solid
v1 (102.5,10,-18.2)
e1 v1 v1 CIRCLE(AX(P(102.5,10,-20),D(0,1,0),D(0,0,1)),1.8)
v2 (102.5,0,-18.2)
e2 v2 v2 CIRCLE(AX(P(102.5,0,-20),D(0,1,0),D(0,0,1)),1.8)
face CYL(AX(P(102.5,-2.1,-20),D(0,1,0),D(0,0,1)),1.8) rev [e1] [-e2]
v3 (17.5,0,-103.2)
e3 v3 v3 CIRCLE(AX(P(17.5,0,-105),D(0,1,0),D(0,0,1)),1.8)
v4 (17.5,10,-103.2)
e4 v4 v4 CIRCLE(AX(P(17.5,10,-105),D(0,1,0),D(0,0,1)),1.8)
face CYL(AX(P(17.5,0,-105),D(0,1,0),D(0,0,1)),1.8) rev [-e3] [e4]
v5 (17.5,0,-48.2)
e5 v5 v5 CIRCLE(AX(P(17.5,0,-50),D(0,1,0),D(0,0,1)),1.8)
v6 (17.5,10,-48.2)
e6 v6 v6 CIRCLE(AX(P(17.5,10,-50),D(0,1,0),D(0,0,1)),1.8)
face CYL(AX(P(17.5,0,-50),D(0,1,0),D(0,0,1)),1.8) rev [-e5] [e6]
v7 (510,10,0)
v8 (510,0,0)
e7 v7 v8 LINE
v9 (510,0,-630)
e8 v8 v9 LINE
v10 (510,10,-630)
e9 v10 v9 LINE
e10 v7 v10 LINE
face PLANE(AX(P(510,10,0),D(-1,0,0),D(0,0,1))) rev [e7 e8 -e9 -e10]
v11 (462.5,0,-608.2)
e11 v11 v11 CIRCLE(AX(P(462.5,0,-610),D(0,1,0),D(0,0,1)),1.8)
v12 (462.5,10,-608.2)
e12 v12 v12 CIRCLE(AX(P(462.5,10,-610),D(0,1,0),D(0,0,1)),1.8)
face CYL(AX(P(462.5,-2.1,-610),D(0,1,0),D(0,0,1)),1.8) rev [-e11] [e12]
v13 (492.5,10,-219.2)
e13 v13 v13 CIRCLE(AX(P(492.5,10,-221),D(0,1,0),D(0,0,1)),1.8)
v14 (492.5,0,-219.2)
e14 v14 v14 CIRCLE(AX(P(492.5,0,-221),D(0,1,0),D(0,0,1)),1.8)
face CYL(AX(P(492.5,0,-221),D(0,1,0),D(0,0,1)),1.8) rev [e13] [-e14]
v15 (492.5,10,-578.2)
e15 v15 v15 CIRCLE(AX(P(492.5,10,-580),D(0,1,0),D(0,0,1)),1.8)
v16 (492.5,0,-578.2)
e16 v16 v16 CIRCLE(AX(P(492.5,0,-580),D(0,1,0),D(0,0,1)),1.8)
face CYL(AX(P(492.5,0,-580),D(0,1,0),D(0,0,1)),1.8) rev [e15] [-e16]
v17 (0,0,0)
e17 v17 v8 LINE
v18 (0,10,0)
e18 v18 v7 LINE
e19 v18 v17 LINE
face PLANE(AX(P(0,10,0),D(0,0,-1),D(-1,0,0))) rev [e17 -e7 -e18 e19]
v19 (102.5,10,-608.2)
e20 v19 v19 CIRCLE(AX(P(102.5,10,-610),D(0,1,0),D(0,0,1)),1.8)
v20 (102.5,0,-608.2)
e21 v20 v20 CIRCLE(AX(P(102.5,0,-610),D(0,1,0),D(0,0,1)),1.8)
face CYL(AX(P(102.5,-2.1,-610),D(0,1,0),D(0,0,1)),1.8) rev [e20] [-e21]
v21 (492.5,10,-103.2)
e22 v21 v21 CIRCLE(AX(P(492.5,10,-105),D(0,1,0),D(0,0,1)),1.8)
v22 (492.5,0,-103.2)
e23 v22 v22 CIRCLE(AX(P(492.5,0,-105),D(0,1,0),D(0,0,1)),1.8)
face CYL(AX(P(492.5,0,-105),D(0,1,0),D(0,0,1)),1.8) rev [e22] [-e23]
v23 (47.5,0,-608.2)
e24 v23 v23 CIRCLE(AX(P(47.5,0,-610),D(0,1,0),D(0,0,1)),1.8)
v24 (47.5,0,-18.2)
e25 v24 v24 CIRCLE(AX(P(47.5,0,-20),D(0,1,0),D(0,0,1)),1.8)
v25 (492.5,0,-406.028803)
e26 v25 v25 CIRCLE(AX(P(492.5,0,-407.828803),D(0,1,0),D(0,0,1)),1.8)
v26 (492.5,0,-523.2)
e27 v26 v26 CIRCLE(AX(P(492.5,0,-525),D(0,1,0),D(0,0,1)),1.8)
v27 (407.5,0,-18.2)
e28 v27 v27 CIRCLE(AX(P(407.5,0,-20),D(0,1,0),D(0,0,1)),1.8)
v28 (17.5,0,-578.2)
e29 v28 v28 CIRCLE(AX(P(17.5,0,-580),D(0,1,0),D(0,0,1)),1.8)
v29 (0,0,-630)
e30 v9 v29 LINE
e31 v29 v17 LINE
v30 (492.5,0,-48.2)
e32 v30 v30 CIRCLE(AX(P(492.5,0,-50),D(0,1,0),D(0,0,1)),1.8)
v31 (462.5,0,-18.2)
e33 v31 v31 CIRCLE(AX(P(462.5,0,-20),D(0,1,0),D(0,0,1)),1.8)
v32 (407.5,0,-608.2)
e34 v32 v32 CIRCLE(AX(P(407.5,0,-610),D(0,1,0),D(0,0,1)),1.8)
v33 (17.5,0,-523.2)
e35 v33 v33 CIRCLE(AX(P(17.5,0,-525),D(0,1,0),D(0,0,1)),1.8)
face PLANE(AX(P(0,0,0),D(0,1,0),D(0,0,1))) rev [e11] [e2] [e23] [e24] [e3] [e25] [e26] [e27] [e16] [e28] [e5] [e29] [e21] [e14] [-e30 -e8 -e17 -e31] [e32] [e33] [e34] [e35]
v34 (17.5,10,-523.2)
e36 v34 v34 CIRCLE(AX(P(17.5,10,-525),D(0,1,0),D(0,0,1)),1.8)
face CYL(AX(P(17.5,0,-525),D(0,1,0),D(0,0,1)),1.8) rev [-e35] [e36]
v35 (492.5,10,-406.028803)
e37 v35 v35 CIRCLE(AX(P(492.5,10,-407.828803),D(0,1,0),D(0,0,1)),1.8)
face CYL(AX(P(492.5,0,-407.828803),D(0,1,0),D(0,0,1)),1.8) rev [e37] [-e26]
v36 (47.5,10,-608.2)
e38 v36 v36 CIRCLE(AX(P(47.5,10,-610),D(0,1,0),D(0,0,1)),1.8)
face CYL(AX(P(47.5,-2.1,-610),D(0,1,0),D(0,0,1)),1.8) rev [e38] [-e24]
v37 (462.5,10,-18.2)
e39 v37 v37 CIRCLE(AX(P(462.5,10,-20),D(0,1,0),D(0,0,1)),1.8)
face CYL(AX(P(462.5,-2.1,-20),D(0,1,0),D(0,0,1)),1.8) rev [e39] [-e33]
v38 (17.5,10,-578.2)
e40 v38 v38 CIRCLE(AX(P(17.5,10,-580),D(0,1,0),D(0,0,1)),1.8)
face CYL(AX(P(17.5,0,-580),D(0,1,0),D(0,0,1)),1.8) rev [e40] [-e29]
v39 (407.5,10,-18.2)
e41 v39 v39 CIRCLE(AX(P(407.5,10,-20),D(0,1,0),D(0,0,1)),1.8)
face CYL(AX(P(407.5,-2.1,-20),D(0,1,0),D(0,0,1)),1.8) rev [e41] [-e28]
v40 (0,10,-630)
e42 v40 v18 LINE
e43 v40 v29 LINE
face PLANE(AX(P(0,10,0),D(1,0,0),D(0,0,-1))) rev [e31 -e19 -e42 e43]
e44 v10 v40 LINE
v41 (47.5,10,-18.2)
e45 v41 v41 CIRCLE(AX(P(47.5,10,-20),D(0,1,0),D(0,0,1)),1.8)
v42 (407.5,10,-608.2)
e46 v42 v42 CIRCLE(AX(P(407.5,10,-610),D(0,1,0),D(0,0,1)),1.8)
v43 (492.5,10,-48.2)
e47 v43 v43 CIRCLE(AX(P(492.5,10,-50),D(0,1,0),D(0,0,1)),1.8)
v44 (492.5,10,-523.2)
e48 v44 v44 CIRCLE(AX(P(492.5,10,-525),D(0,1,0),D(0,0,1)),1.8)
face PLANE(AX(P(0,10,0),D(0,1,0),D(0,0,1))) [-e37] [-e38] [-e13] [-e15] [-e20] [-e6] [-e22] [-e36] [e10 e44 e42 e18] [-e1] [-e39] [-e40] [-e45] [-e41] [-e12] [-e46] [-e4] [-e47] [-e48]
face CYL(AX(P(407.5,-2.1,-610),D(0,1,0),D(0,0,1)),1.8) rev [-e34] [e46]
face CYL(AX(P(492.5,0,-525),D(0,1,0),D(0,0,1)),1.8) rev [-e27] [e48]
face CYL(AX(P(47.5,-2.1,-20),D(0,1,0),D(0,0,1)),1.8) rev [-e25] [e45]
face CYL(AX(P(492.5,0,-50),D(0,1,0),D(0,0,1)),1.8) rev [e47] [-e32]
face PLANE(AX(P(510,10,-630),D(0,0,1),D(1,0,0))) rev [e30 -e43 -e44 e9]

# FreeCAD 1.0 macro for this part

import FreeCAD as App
import Part
import Sketcher


def add_polygon(sketch, points):
    """Adds a closed chain of lines whose ends are joined by coincident constraints."""
    first, n = sketch.GeometryCount, len(points)
    for a, b in zip(points, points[1:] + points[:1]):
        sketch.addGeometry(Part.LineSegment(App.Vector(*a, 0), App.Vector(*b, 0)), False)
    for i in range(n):
        sketch.addConstraint(Sketcher.Constraint("Coincident", first + i, 2, first + (i + 1) % n, 1))

doc = App.newDocument("Part")
body = doc.addObject("PartDesign::Body", "Body")

sketch1 = body.newObject("Sketcher::SketchObject", "Sketch")
sketch1.AttachmentSupport = (doc.getObject("XZ_Plane"), [""])
sketch1.MapMode = "FlatFace"
add_polygon(sketch1, [(0, -630), (0, 0), (510, 0), (510, -630)])
sketch1.addConstraint(Sketcher.Constraint("Vertical", 0))
sketch1.addConstraint(Sketcher.Constraint("Horizontal", 1))
sketch1.addConstraint(Sketcher.Constraint("Vertical", 2))
sketch1.addConstraint(Sketcher.Constraint("Horizontal", 3))
sketch1.addConstraint(Sketcher.Constraint("Coincident", 0, 2, -1, 1))
sketch1.addConstraint(Sketcher.Constraint("DistanceX", 1, 1, 1, 2, 510.0))
sketch1.addConstraint(Sketcher.Constraint("DistanceY", 0, 1, 0, 2, 630.0))
pad1 = body.newObject("PartDesign::Pad", "Pad")
pad1.Profile = sketch1
pad1.Length = 10
pad1.Reversed = True

sketch2 = body.newObject("Sketcher::SketchObject", "Sketch001")
sketch2.AttachmentSupport = (doc.getObject("XZ_Plane"), [""])
sketch2.MapMode = "FlatFace"
sketch2.AttachmentOffset = App.Placement(App.Vector(0, 0, -10), App.Rotation())
sketch2.addGeometry(Part.Circle(App.Vector(492.5, -50, 0), App.Vector(0, 0, 1), 1.8), False)
sketch2.addGeometry(Part.Circle(App.Vector(492.5, -105, 0), App.Vector(0, 0, 1), 1.8), False)
sketch2.addGeometry(Part.Circle(App.Vector(492.5, -580, 0), App.Vector(0, 0, 1), 1.8), False)
sketch2.addGeometry(Part.Circle(App.Vector(492.5, -525, 0), App.Vector(0, 0, 1), 1.8), False)
sketch2.addGeometry(Part.Circle(App.Vector(492.5, -407.8, 0), App.Vector(0, 0, 1), 1.8), False)
sketch2.addGeometry(Part.Circle(App.Vector(492.5, -221, 0), App.Vector(0, 0, 1), 1.8), False)
sketch2.addConstraint(Sketcher.Constraint("Equal", 0, 1))
sketch2.addConstraint(Sketcher.Constraint("Equal", 1, 2))
sketch2.addConstraint(Sketcher.Constraint("Equal", 2, 3))
sketch2.addConstraint(Sketcher.Constraint("Equal", 3, 4))
sketch2.addConstraint(Sketcher.Constraint("Equal", 4, 5))
sketch2.addConstraint(Sketcher.Constraint("Vertical", 0, 3, 1, 3))
sketch2.addConstraint(Sketcher.Constraint("Vertical", 1, 3, 2, 3))
sketch2.addConstraint(Sketcher.Constraint("Vertical", 2, 3, 3, 3))
sketch2.addConstraint(Sketcher.Constraint("Vertical", 3, 3, 4, 3))
sketch2.addConstraint(Sketcher.Constraint("Vertical", 4, 3, 5, 3))
sketch2.addConstraint(Sketcher.Constraint("Diameter", 0, 3.6))
sketch2.addConstraint(Sketcher.Constraint("DistanceY", 0, 3, -1, 1, 50.0))
sketch2.addConstraint(Sketcher.Constraint("DistanceY", 1, 3, -1, 1, 105.0))
sketch2.addConstraint(Sketcher.Constraint("DistanceY", 2, 3, -1, 1, 580.0))
sketch2.addConstraint(Sketcher.Constraint("DistanceY", 3, 3, -1, 1, 525.0))
sketch2.addConstraint(Sketcher.Constraint("DistanceY", 5, 3, -1, 1, 221.0))
sketch2.addConstraint(Sketcher.Constraint("DistanceX", -1, 1, 0, 3, 492.5))
sketch2.addConstraint(Sketcher.Constraint("DistanceY", 4, 3, -1, 1, 407.828803))
pocket1 = body.newObject("PartDesign::Pocket", "Pocket")
pocket1.Profile = sketch2
pocket1.Length = 10
pocket1.Reversed = True

sketch3 = body.newObject("Sketcher::SketchObject", "Sketch002")
sketch3.AttachmentSupport = (doc.getObject("XZ_Plane"), [""])
sketch3.MapMode = "FlatFace"
sketch3.AttachmentOffset = App.Placement(App.Vector(0, 0, -10), App.Rotation())
sketch3.addGeometry(Part.Circle(App.Vector(17.5, -50, 0), App.Vector(0, 0, 1), 1.8), False)
sketch3.addGeometry(Part.Circle(App.Vector(17.5, -105, 0), App.Vector(0, 0, 1), 1.8), False)
sketch3.addGeometry(Part.Circle(App.Vector(17.5, -525, 0), App.Vector(0, 0, 1), 1.8), False)
sketch3.addGeometry(Part.Circle(App.Vector(17.5, -580, 0), App.Vector(0, 0, 1), 1.8), False)
sketch3.addConstraint(Sketcher.Constraint("Equal", 0, 1))
sketch3.addConstraint(Sketcher.Constraint("Equal", 1, 2))
sketch3.addConstraint(Sketcher.Constraint("Equal", 2, 3))
sketch3.addConstraint(Sketcher.Constraint("Vertical", 0, 3, 1, 3))
sketch3.addConstraint(Sketcher.Constraint("Vertical", 1, 3, 2, 3))
sketch3.addConstraint(Sketcher.Constraint("Vertical", 2, 3, 3, 3))
sketch3.addConstraint(Sketcher.Constraint("Diameter", 0, 3.6))
sketch3.addConstraint(Sketcher.Constraint("DistanceY", 0, 3, -1, 1, 50.0))
sketch3.addConstraint(Sketcher.Constraint("DistanceY", 1, 3, -1, 1, 105.0))
sketch3.addConstraint(Sketcher.Constraint("DistanceY", 2, 3, -1, 1, 525.0))
sketch3.addConstraint(Sketcher.Constraint("DistanceY", 3, 3, -1, 1, 580.0))
sketch3.addConstraint(Sketcher.Constraint("DistanceX", -1, 1, 0, 3, 17.5))
pocket2 = body.newObject("PartDesign::Pocket", "Pocket001")
pocket2.Profile = sketch3
pocket2.Length = 10
pocket2.Reversed = True

sketch4 = body.newObject("Sketcher::SketchObject", "Sketch003")
sketch4.AttachmentSupport = (doc.getObject("XZ_Plane"), [""])
sketch4.MapMode = "FlatFace"
sketch4.AttachmentOffset = App.Placement(App.Vector(0, 0, -10), App.Rotation())
sketch4.addGeometry(Part.Circle(App.Vector(47.5, -610, 0), App.Vector(0, 0, 1), 1.8), False)
sketch4.addGeometry(Part.Circle(App.Vector(102.5, -610, 0), App.Vector(0, 0, 1), 1.8), False)
sketch4.addGeometry(Part.Circle(App.Vector(407.5, -610, 0), App.Vector(0, 0, 1), 1.8), False)
sketch4.addGeometry(Part.Circle(App.Vector(462.5, -610, 0), App.Vector(0, 0, 1), 1.8), False)
sketch4.addGeometry(Part.Circle(App.Vector(462.5, -20, 0), App.Vector(0, 0, 1), 1.8), False)
sketch4.addGeometry(Part.Circle(App.Vector(407.5, -20, 0), App.Vector(0, 0, 1), 1.8), False)
sketch4.addGeometry(Part.Circle(App.Vector(102.5, -20, 0), App.Vector(0, 0, 1), 1.8), False)
sketch4.addGeometry(Part.Circle(App.Vector(47.5, -20, 0), App.Vector(0, 0, 1), 1.8), False)
sketch4.addConstraint(Sketcher.Constraint("Equal", 0, 1))
sketch4.addConstraint(Sketcher.Constraint("Equal", 1, 2))
sketch4.addConstraint(Sketcher.Constraint("Equal", 2, 3))
sketch4.addConstraint(Sketcher.Constraint("Equal", 3, 4))
sketch4.addConstraint(Sketcher.Constraint("Equal", 4, 5))
sketch4.addConstraint(Sketcher.Constraint("Equal", 5, 6))
sketch4.addConstraint(Sketcher.Constraint("Equal", 6, 7))
sketch4.addConstraint(Sketcher.Constraint("Horizontal", 0, 3, 1, 3))
sketch4.addConstraint(Sketcher.Constraint("Horizontal", 1, 3, 2, 3))
sketch4.addConstraint(Sketcher.Constraint("Horizontal", 2, 3, 3, 3))
sketch4.addConstraint(Sketcher.Constraint("Horizontal", 4, 3, 5, 3))
sketch4.addConstraint(Sketcher.Constraint("Horizontal", 5, 3, 6, 3))
sketch4.addConstraint(Sketcher.Constraint("Horizontal", 6, 3, 7, 3))
sketch4.addConstraint(Sketcher.Constraint("Vertical", 3, 3, 4, 3))
sketch4.addConstraint(Sketcher.Constraint("Vertical", 2, 3, 5, 3))
sketch4.addConstraint(Sketcher.Constraint("Vertical", 1, 3, 6, 3))
sketch4.addConstraint(Sketcher.Constraint("Vertical", 0, 3, 7, 3))
sketch4.addConstraint(Sketcher.Constraint("Diameter", 0, 3.6))
sketch4.addConstraint(Sketcher.Constraint("DistanceY", 0, 3, -1, 1, 610.0))
sketch4.addConstraint(Sketcher.Constraint("DistanceY", 4, 3, -1, 1, 20.0))
sketch4.addConstraint(Sketcher.Constraint("DistanceX", 0, 3, 1, 3, 55.0))
sketch4.addConstraint(Sketcher.Constraint("DistanceX", 1, 3, 2, 3, 305.0))
sketch4.addConstraint(Sketcher.Constraint("DistanceX", 2, 3, 3, 3, 55.0))
sketch4.addConstraint(Sketcher.Constraint("DistanceX", -1, 1, 0, 3, 47.5))
pocket3 = body.newObject("PartDesign::Pocket", "Pocket002")
pocket3.Profile = sketch4
pocket3.Length = 12.1
pocket3.Reversed = True

doc.recompute()
